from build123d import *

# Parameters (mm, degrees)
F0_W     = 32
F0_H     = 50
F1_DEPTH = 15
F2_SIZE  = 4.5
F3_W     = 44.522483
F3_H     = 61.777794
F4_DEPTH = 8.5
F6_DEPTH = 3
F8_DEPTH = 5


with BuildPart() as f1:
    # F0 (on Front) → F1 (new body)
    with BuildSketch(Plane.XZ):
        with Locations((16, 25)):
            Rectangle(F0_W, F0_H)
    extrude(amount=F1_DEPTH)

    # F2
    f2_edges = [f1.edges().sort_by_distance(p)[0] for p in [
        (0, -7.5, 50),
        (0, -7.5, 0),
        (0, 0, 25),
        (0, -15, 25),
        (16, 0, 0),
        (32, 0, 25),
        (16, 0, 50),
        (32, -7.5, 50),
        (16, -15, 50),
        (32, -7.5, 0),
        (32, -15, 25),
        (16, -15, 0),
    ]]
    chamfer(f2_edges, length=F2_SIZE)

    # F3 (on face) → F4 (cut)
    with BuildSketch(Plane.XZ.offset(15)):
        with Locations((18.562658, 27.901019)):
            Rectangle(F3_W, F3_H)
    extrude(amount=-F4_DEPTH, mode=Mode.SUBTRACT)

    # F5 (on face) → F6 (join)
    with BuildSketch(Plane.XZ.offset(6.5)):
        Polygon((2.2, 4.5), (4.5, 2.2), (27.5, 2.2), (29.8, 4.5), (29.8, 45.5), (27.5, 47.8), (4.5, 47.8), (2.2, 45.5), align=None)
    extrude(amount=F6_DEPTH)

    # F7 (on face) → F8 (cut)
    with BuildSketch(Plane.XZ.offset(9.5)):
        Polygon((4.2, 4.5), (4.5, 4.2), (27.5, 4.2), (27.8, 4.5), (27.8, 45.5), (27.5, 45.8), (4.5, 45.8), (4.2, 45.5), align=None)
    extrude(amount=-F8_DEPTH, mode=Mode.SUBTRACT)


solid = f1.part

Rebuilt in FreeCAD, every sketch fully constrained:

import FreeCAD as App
import Part
import Sketcher

doc = App.newDocument("Part")
body = doc.addObject("PartDesign::Body", "Body")

# Sketch on XZ plane
sketch1 = body.newObject("Sketcher::SketchObject", "Sketch")
sketch1.AttachmentSupport = (doc.getObject("XZ_Plane"), [""])
sketch1.MapMode = "FlatFace"
sketch1.addGeometry([
    Part.LineSegment(App.Vector(0, 50, 0), App.Vector(0, 0, 0)),
    Part.LineSegment(App.Vector(0, 0, 0), App.Vector(32, 0, 0)),
    Part.LineSegment(App.Vector(32, 0, 0), App.Vector(32, 50, 0)),
    Part.LineSegment(App.Vector(32, 50, 0), App.Vector(0, 50, 0)),
], False)
sketch1.addConstraint([
    Sketcher.Constraint("Coincident", 0, 2, 1, 1),
    Sketcher.Constraint("Coincident", 1, 2, 2, 1),
    Sketcher.Constraint("Coincident", 2, 2, 3, 1),
    Sketcher.Constraint("Coincident", 3, 2, 0, 1),
    Sketcher.Constraint("Vertical", 0),
    Sketcher.Constraint("Horizontal", 1),
    Sketcher.Constraint("Vertical", 2),
    Sketcher.Constraint("Horizontal", 3),
    Sketcher.Constraint("Coincident", 0, 2, -1, 1),
    Sketcher.Constraint("DistanceX", 1, 1, 1, 2, 32.0),
    Sketcher.Constraint("DistanceY", 0, 2, 0, 1, 50.0),
])
pad1 = body.newObject("PartDesign::Pad", "Pad")
pad1.Profile = sketch1
pad1.Length = 15
doc.recompute()

chamfer = body.newObject("PartDesign::Chamfer", "Chamfer")
chamfer.Base = (pad1, ["Edge1"])
chamfer.UseAllEdges = True
chamfer.Size = 4.5

# Sketch on XZ plane
sketch2 = body.newObject("Sketcher::SketchObject", "Sketch001")
sketch2.AttachmentSupport = (doc.getObject("XZ_Plane"), [""])
sketch2.MapMode = "FlatFace"
sketch2.AttachmentOffset = App.Placement(App.Vector(0, 0, 15), App.Rotation())
sketch2.addGeometry([
    Part.LineSegment(App.Vector(-4, 59, 0), App.Vector(-4, -3, 0)),
    Part.LineSegment(App.Vector(-4, -3, 0), App.Vector(41, -3, 0)),
    Part.LineSegment(App.Vector(41, -3, 0), App.Vector(41, 59, 0)),
    Part.LineSegment(App.Vector(41, 59, 0), App.Vector(-4, 59, 0)),
], False)
sketch2.addConstraint([
    Sketcher.Constraint("Coincident", 0, 2, 1, 1),
    Sketcher.Constraint("Coincident", 1, 2, 2, 1),
    Sketcher.Constraint("Coincident", 2, 2, 3, 1),
    Sketcher.Constraint("Coincident", 3, 2, 0, 1),
    Sketcher.Constraint("Vertical", 0),
    Sketcher.Constraint("Horizontal", 1),
    Sketcher.Constraint("Vertical", 2),
    Sketcher.Constraint("Horizontal", 3),
    Sketcher.Constraint("DistanceX", -1, 1, 1, 2, 40.8239),
    Sketcher.Constraint("DistanceX", 1, 1, 1, 2, 44.522483),
    Sketcher.Constraint("DistanceY", 0, 2, 0, 1, 61.777794),
    Sketcher.Constraint("DistanceY", 0, 2, -1, 1, 2.987878),
])
pocket1 = body.newObject("PartDesign::Pocket", "Pocket")
pocket1.Profile = sketch2
pocket1.Length = 8.5

# Sketch on XZ plane
sketch3 = body.newObject("Sketcher::SketchObject", "Sketch002")
sketch3.AttachmentSupport = (doc.getObject("XZ_Plane"), [""])
sketch3.MapMode = "FlatFace"
sketch3.AttachmentOffset = App.Placement(App.Vector(0, 0, 6.5), App.Rotation())
sketch3.addGeometry([
    Part.LineSegment(App.Vector(2.2, 4.5, 0), App.Vector(4.5, 2.2, 0)),  # 0
    Part.LineSegment(App.Vector(4.5, 2.2, 0), App.Vector(27.5, 2.2, 0)),  # 1
    Part.LineSegment(App.Vector(27.5, 2.2, 0), App.Vector(29.8, 4.5, 0)),  # 2
    Part.LineSegment(App.Vector(29.8, 4.5, 0), App.Vector(29.8, 45.5, 0)),  # 3
    Part.LineSegment(App.Vector(29.8, 45.5, 0), App.Vector(27.5, 47.8, 0)),  # 4
    Part.LineSegment(App.Vector(27.5, 47.8, 0), App.Vector(4.5, 47.8, 0)),  # 5
    Part.LineSegment(App.Vector(4.5, 47.8, 0), App.Vector(2.2, 45.5, 0)),  # 6
    Part.LineSegment(App.Vector(2.2, 45.5, 0), App.Vector(2.2, 4.5, 0)),  # 7
], False)
sketch3.addConstraint([
    Sketcher.Constraint("Coincident", 0, 2, 1, 1),
    Sketcher.Constraint("Coincident", 1, 2, 2, 1),
    Sketcher.Constraint("Coincident", 2, 2, 3, 1),
    Sketcher.Constraint("Coincident", 3, 2, 4, 1),
    Sketcher.Constraint("Coincident", 4, 2, 5, 1),
    Sketcher.Constraint("Coincident", 5, 2, 6, 1),
    Sketcher.Constraint("Coincident", 6, 2, 7, 1),
    Sketcher.Constraint("Coincident", 7, 2, 0, 1),
    Sketcher.Constraint("Horizontal", 1),
    Sketcher.Constraint("Vertical", 3),
    Sketcher.Constraint("Horizontal", 5),
    Sketcher.Constraint("Vertical", 7),
    Sketcher.Constraint("Perpendicular", 0, 2),
    Sketcher.Constraint("Perpendicular", 2, 4),
    Sketcher.Constraint("Perpendicular", 4, 6),
    Sketcher.Constraint("Horizontal", 3, 2, 6, 2),
    Sketcher.Constraint("Horizontal", 2, 2, 7, 2),
    Sketcher.Constraint("Vertical", 1, 2, 4, 2),
    Sketcher.Constraint("Vertical", 0, 2, 5, 2),
    Sketcher.Constraint("DistanceX", 1, 1, 1, 2, 23.0),
    Sketcher.Constraint("DistanceY", 3, 1, 3, 2, 41.0),
    Sketcher.Constraint("DistanceX", -1, 1, 0, 2, 4.5),
    Sketcher.Constraint("DistanceY", -1, 1, 0, 2, 2.2),
    Sketcher.Constraint("DistanceX", -1, 1, 2, 2, 29.8),
])
pad2 = body.newObject("PartDesign::Pad", "Pad001")
pad2.Profile = sketch3
pad2.Length = 3

# Sketch on XZ plane
sketch4 = body.newObject("Sketcher::SketchObject", "Sketch003")
sketch4.AttachmentSupport = (doc.getObject("XZ_Plane"), [""])
sketch4.MapMode = "FlatFace"
sketch4.AttachmentOffset = App.Placement(App.Vector(0, 0, 9.5), App.Rotation())
sketch4.addGeometry([
    Part.LineSegment(App.Vector(4.2, 4.5, 0), App.Vector(4.5, 4.2, 0)),  # 0
    Part.LineSegment(App.Vector(4.5, 4.2, 0), App.Vector(27.5, 4.2, 0)),  # 1
    Part.LineSegment(App.Vector(27.5, 4.2, 0), App.Vector(27.8, 4.5, 0)),  # 2
    Part.LineSegment(App.Vector(27.8, 4.5, 0), App.Vector(27.8, 45.5, 0)),  # 3
    Part.LineSegment(App.Vector(27.8, 45.5, 0), App.Vector(27.5, 45.8, 0)),  # 4
    Part.LineSegment(App.Vector(27.5, 45.8, 0), App.Vector(4.5, 45.8, 0)),  # 5
    Part.LineSegment(App.Vector(4.5, 45.8, 0), App.Vector(4.2, 45.5, 0)),  # 6
    Part.LineSegment(App.Vector(4.2, 45.5, 0), App.Vector(4.2, 4.5, 0)),  # 7
], False)
sketch4.addConstraint([
    Sketcher.Constraint("Coincident", 0, 2, 1, 1),
    Sketcher.Constraint("Coincident", 1, 2, 2, 1),
    Sketcher.Constraint("Coincident", 2, 2, 3, 1),
    Sketcher.Constraint("Coincident", 3, 2, 4, 1),
    Sketcher.Constraint("Coincident", 4, 2, 5, 1),
    Sketcher.Constraint("Coincident", 5, 2, 6, 1),
    Sketcher.Constraint("Coincident", 6, 2, 7, 1),
    Sketcher.Constraint("Coincident", 7, 2, 0, 1),
    Sketcher.Constraint("Horizontal", 1),
    Sketcher.Constraint("Vertical", 3),
    Sketcher.Constraint("Horizontal", 5),
    Sketcher.Constraint("Vertical", 7),
    Sketcher.Constraint("Perpendicular", 0, 2),
    Sketcher.Constraint("Perpendicular", 2, 4),
    Sketcher.Constraint("Perpendicular", 4, 6),
    Sketcher.Constraint("Horizontal", 3, 2, 6, 2),
    Sketcher.Constraint("Horizontal", 2, 2, 7, 2),
    Sketcher.Constraint("Vertical", 1, 2, 4, 2),
    Sketcher.Constraint("Vertical", 0, 2, 5, 2),
    Sketcher.Constraint("DistanceX", 1, 1, 1, 2, 23.0),
    Sketcher.Constraint("DistanceY", 3, 1, 3, 2, 41.0),
    Sketcher.Constraint("DistanceX", -1, 1, 0, 2, 4.5),
    Sketcher.Constraint("DistanceY", -1, 1, 0, 2, 4.2),
    Sketcher.Constraint("DistanceX", -1, 1, 2, 2, 27.8),
])
pocket2 = body.newObject("PartDesign::Pocket", "Pocket001")
pocket2.Profile = sketch4
pocket2.Length = 5

doc.recompute()
